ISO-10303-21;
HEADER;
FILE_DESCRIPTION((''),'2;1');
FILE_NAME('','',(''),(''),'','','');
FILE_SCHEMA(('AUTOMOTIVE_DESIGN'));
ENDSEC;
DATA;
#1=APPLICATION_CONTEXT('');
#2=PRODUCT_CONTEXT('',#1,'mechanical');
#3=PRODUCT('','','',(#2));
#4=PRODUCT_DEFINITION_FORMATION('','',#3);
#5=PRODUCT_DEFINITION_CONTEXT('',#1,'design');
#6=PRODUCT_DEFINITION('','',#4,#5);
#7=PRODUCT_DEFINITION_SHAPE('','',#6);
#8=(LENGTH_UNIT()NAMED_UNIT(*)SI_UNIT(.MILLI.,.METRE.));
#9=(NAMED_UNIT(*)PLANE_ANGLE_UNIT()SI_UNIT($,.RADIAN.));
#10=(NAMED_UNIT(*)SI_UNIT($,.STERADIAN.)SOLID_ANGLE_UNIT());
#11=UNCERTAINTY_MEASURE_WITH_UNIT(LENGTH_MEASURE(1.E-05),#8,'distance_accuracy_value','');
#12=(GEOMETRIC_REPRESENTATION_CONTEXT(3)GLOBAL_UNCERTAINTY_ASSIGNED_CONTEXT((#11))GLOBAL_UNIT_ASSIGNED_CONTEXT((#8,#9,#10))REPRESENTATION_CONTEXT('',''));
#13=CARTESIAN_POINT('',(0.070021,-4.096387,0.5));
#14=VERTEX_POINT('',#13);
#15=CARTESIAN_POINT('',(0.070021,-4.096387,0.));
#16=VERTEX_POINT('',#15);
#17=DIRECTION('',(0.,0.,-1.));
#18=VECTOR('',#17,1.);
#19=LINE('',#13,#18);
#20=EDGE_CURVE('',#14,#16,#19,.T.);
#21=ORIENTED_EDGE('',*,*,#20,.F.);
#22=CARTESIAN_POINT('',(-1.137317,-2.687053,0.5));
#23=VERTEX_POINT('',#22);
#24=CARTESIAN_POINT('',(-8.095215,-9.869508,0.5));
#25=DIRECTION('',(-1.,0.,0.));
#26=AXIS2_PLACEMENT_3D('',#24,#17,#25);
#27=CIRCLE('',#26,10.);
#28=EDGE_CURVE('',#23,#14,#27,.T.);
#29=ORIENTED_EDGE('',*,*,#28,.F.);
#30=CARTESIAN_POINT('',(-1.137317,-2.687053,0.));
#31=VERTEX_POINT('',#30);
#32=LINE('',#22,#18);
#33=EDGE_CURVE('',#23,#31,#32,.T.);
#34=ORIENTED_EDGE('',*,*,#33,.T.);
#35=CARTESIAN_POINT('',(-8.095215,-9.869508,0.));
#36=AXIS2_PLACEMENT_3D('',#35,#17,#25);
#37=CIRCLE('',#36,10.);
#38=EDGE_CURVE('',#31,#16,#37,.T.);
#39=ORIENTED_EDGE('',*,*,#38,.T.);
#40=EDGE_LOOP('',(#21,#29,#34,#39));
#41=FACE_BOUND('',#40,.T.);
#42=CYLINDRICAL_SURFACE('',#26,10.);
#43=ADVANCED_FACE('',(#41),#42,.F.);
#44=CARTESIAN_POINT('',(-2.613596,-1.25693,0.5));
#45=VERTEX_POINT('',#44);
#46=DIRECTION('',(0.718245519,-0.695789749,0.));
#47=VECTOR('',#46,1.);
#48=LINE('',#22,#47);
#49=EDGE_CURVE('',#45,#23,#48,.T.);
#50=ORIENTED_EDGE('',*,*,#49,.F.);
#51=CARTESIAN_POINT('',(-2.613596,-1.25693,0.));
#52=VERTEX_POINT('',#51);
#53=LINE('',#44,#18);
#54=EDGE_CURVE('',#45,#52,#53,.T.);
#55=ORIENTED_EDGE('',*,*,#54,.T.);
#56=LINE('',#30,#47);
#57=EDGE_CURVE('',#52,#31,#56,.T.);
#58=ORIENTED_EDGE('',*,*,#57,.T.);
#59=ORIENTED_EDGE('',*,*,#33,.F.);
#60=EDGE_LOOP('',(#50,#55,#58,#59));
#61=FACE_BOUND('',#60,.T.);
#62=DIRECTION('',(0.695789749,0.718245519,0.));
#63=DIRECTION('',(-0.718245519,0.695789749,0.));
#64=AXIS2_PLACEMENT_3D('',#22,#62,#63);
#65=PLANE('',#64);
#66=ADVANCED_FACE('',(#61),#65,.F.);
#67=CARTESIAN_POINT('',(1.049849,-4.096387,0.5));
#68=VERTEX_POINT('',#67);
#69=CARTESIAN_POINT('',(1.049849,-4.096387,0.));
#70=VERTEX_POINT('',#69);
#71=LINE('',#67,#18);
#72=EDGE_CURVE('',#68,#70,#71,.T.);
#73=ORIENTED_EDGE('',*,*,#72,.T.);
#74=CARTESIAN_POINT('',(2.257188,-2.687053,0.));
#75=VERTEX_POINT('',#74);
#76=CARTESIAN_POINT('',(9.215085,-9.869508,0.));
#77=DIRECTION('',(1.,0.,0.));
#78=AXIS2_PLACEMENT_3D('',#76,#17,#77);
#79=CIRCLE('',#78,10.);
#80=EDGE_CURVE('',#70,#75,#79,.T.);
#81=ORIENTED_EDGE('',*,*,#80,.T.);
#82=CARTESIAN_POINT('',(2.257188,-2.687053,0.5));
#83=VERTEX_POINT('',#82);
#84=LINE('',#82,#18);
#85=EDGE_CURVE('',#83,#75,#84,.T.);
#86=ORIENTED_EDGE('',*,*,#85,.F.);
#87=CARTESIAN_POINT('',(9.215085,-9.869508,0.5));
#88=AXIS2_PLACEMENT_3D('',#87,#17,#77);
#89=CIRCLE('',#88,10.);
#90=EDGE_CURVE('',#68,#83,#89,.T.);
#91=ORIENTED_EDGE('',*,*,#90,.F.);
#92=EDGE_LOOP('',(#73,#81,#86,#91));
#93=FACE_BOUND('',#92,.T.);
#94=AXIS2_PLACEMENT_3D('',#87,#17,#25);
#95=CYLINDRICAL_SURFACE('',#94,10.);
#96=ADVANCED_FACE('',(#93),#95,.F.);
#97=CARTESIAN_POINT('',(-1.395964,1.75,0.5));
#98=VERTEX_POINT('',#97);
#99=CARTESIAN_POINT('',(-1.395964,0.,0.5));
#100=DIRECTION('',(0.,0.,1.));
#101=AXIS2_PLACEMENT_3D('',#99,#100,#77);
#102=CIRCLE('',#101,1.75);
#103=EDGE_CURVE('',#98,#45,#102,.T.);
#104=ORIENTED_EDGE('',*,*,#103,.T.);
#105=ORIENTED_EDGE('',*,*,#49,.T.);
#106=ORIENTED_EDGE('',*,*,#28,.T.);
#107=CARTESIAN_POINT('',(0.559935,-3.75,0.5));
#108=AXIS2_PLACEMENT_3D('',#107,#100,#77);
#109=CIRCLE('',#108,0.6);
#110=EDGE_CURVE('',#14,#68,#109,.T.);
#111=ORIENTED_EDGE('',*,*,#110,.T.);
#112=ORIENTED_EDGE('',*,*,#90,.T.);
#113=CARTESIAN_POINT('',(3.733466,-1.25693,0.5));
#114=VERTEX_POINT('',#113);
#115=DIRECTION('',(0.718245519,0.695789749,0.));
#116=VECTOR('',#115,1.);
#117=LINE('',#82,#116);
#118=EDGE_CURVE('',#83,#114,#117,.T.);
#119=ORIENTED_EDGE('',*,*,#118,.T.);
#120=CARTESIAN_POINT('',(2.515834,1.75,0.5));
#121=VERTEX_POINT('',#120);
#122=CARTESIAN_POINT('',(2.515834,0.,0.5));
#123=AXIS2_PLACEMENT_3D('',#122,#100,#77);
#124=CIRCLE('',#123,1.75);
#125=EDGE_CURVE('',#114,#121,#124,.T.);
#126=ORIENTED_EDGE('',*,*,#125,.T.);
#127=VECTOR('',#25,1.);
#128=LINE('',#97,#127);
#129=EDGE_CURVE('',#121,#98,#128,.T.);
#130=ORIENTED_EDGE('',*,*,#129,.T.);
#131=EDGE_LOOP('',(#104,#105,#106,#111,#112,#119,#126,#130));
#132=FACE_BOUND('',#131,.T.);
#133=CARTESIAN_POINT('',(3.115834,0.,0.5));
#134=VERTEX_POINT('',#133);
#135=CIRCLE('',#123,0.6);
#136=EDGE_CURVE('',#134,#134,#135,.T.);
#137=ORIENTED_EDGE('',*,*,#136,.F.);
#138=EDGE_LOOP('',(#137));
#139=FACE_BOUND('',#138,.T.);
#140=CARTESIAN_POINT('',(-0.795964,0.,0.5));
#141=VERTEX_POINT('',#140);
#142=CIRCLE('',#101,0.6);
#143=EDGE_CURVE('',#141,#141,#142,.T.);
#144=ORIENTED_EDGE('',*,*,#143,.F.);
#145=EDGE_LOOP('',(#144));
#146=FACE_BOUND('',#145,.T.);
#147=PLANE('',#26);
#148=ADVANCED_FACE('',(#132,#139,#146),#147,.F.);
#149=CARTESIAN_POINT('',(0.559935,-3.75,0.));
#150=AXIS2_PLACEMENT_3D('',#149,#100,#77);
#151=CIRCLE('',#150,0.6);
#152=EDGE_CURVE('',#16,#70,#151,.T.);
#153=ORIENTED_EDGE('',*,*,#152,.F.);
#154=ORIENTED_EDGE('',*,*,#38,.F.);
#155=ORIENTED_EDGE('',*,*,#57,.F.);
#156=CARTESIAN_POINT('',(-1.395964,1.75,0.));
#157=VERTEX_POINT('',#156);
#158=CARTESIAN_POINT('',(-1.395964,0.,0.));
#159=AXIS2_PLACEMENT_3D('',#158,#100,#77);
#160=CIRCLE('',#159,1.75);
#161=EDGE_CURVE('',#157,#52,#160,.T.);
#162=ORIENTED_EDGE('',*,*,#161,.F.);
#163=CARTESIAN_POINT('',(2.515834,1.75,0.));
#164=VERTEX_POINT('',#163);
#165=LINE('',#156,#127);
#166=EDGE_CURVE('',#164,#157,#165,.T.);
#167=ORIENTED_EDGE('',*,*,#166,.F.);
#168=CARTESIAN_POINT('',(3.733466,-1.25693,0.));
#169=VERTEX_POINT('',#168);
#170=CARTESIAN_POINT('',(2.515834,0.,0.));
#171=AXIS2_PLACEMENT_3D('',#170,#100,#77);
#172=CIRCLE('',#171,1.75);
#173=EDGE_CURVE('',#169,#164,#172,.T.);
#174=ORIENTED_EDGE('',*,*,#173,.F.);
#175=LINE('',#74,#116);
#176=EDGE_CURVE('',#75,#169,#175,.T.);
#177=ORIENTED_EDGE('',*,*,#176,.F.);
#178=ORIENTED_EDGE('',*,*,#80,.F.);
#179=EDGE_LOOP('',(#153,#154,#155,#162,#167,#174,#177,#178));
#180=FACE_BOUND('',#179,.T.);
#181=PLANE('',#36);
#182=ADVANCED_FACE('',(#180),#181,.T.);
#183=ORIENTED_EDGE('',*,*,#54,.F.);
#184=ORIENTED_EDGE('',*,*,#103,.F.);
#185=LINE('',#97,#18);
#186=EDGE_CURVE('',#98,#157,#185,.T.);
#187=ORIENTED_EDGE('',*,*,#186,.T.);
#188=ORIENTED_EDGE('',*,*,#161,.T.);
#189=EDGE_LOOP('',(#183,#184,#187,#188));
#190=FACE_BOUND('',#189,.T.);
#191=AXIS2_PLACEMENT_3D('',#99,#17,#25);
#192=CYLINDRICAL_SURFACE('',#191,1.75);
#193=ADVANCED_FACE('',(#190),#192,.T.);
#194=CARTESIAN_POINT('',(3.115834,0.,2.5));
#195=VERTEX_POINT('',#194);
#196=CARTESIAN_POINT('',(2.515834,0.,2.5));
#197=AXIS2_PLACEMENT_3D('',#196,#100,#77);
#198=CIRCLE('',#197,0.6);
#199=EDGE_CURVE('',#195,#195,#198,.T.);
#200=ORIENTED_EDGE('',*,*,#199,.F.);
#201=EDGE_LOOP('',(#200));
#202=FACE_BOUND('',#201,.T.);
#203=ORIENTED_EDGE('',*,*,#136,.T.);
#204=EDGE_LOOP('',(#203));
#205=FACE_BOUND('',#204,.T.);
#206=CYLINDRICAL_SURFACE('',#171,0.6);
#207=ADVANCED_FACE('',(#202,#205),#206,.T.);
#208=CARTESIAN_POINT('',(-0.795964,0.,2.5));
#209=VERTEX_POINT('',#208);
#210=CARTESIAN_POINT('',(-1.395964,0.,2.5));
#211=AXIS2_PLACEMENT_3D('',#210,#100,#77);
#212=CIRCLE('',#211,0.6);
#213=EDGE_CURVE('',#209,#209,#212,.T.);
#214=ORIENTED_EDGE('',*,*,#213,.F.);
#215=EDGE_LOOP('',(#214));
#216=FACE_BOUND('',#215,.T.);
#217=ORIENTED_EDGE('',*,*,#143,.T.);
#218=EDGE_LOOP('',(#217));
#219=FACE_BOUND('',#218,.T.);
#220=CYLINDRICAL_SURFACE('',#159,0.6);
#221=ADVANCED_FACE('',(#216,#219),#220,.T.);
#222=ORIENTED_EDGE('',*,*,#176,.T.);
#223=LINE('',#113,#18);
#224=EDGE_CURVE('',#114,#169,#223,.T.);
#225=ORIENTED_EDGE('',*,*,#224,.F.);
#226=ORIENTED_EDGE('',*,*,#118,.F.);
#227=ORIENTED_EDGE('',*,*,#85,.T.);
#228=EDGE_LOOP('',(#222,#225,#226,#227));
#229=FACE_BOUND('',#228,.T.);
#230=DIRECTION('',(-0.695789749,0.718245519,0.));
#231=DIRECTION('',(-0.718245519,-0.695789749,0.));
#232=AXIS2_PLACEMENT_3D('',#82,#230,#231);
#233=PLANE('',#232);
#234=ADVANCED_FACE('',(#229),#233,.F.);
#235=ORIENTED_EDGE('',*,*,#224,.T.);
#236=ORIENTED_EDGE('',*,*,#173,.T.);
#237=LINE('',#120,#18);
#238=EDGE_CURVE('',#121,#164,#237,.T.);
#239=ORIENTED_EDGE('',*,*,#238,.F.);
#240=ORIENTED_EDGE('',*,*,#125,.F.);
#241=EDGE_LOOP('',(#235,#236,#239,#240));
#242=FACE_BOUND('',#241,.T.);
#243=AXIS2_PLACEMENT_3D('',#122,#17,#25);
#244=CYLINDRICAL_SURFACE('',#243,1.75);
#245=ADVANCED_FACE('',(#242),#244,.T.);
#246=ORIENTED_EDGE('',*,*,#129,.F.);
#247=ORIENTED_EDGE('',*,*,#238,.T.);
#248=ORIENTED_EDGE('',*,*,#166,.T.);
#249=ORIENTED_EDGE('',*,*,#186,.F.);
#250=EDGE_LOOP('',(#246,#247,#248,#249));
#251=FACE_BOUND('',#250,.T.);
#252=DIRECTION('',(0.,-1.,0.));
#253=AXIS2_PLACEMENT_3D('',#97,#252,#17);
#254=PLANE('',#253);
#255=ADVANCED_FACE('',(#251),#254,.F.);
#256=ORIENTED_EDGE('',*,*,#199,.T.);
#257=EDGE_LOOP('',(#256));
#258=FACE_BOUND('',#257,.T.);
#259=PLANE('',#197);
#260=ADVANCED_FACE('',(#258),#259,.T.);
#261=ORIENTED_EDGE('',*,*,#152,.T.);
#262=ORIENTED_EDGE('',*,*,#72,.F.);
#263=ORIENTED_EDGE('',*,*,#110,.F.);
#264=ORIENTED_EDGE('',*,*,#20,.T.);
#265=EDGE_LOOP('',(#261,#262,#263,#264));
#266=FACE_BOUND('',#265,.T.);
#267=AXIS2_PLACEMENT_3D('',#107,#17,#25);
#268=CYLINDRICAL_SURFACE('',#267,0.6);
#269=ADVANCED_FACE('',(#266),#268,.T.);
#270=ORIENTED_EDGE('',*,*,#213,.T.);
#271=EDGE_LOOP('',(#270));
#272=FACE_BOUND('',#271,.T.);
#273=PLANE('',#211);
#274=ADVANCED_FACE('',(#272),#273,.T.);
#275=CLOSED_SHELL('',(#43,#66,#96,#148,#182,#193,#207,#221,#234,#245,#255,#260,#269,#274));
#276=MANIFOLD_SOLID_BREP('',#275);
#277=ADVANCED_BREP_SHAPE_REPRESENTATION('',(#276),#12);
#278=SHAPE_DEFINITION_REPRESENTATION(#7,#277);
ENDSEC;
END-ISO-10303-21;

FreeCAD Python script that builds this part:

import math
import FreeCAD as App
import Part
import Sketcher
from FreeCAD import Vector
Q = App.Units.Quantity

doc = App.newDocument("Part")
params = doc.addObject("Spreadsheet::Sheet", "Params")
for row, (alias, value) in enumerate([
    ("sketch1_radius", "10 mm"),
    ("sketch1_diameter", "1.2 mm"),
    ("sketch1_radius2", "1.75 mm"),
    ("pad1_length", "0.5 mm"),
    ("sketch2_diameter", "1.2 mm"),
    ("pad2_length", "2 mm"),
    ("pad2_length2", "0.5 mm"),
], start=1):
    params.set(f"A{row}", alias)
    params.set(f"B{row}", "=" + value)
    params.setAlias(f"B{row}", alias)

body = doc.addObject("PartDesign::Body", "Body")

# Sketch on XY plane
sketch1 = body.newObject("Sketcher::SketchObject", "Sketch")
sketch1.AttachmentSupport = (doc.getObject("XY_Plane"), [""])
sketch1.MapMode = "FlatFace"
sketch1.addGeometry([
    Part.LineSegment(Vector(2.5, 1.8, 0), Vector(-1.4, 1.8, 0)),  # 0
    Part.ArcOfCircle(Part.Circle(Vector(-1.4, 0, 0), Vector(0, 0, 1), 1.8), math.radians(90), math.radians(226)),  # 1
    Part.LineSegment(Vector(-2.6, -1.3, 0), Vector(-1.1, -2.7, 0)),  # 2
    Part.ArcOfCircle(Part.Circle(Vector(-8.1, -9.9, 0), Vector(0, 0, 1), 10), math.radians(35.26), math.radians(45.91)),  # 3
    Part.ArcOfCircle(Part.Circle(Vector(0.6, -3.8, 0), Vector(0, 0, 1), 0.6), math.radians(-145), math.radians(-35)),  # 4
    Part.ArcOfCircle(Part.Circle(Vector(9.2, -9.9, 0), Vector(0, 0, 1), 10), math.radians(134.09), math.radians(144.74)),  # 5
    Part.LineSegment(Vector(2.3, -2.7, 0), Vector(3.7, -1.3, 0)),  # 6
    Part.ArcOfCircle(Part.Circle(Vector(2.5, 0, 0), Vector(0, 0, 1), 1.7), math.radians(-46), math.radians(90)),  # 7
    Part.Circle(Vector(2.5, 0, 0), Vector(0, 0, 1), 0.6),  # 8
    Part.Circle(Vector(-1.4, 0, 0), Vector(0, 0, 1), 0.6),  # 9
], False)
sketch1.addConstraint([
    Sketcher.Constraint("Tangent", 0, 2, 1, 1),
    Sketcher.Constraint("Tangent", 1, 2, 2, 1),
    Sketcher.Constraint("Tangent", 2, 2, 3, 2),
    Sketcher.Constraint("Tangent", 3, 1, 4, 1),
    Sketcher.Constraint("Tangent", 4, 2, 5, 2),
    Sketcher.Constraint("Tangent", 5, 1, 6, 1),
    Sketcher.Constraint("Tangent", 6, 2, 7, 1),
    Sketcher.Constraint("Tangent", 7, 2, 0, 1),
    Sketcher.Constraint("Horizontal", 0),
    Sketcher.Constraint("Coincident", 8, 3, 7, 3),
    Sketcher.Constraint("Coincident", 9, 3, 1, 3),
    Sketcher.Constraint("Equal", 3, 5),
    Sketcher.Constraint("Equal", 1, 7),
    Sketcher.Constraint("Equal", 4, 8),
    Sketcher.Constraint("Equal", 8, 9),
    Sketcher.Constraint("PointOnObject", 1, 3, -1),
    Sketcher.Constraint("Horizontal", 3, 3, 5, 3),
    Sketcher.Constraint("Horizontal", 2, 2, 5, 1),
    Sketcher.Constraint("Radius", 3, Q("10 mm")),
    Sketcher.Constraint("Diameter", 8, Q("1.2 mm")),
    Sketcher.Constraint("Radius", 1, Q("1.75 mm")),
    Sketcher.Constraint("DistanceY", 4, 3, 0, 2, Q("5.5 mm")),
    Sketcher.Constraint("DistanceX", 0, 2, 0, 1, Q("3.911798 mm")),
    Sketcher.Constraint("DistanceX", 3, 3, 5, 3, Q("17.3103 mm")),
    Sketcher.Constraint("DistanceX", -1, 1, 3, 1, Q("0.070021 mm")),
])
sketch1.setExpression("Constraints[18]", "Params.sketch1_radius")
sketch1.setExpression("Constraints[19]", "Params.sketch1_diameter")
sketch1.setExpression("Constraints[20]", "Params.sketch1_radius2")
pad1 = body.newObject("PartDesign::Pad", "Pad")
pad1.Profile = sketch1
pad1.setExpression("Length", "Params.pad1_length")

# Sketch on XY plane
sketch2 = body.newObject("Sketcher::SketchObject", "Sketch001")
sketch2.AttachmentSupport = (doc.getObject("XY_Plane"), [""])
sketch2.MapMode = "FlatFace"
sketch2.AttachmentOffset = App.Placement(Vector(0, 0, 0.5), App.Rotation())
sketch2.addGeometry([
    Part.Circle(Vector(-1.4, 0, 0), Vector(0, 0, 1), 0.6),
    Part.Circle(Vector(2.5, 0, 0), Vector(0, 0, 1), 0.6),
], False)
sketch2.addConstraint([
    Sketcher.Constraint("Equal", 0, 1),
    Sketcher.Constraint("PointOnObject", 0, 3, -1),
    Sketcher.Constraint("PointOnObject", 1, 3, -1),
    Sketcher.Constraint("Diameter", 0, Q("1.2 mm")),
    Sketcher.Constraint("DistanceX", 0, 3, 1, 3, Q("3.911798 mm")),
    Sketcher.Constraint("DistanceX", 0, 3, -1, 1, Q("1.395964 mm")),
])
sketch2.setExpression("Constraints[3]", "Params.sketch2_diameter")
pad2 = body.newObject("PartDesign::Pad", "Pad001")
pad2.Profile = sketch2
pad2.Type = "TwoLengths"
pad2.setExpression("Length", "Params.pad2_length")
pad2.setExpression("Length2", "Params.pad2_length2")

doc.recompute()
